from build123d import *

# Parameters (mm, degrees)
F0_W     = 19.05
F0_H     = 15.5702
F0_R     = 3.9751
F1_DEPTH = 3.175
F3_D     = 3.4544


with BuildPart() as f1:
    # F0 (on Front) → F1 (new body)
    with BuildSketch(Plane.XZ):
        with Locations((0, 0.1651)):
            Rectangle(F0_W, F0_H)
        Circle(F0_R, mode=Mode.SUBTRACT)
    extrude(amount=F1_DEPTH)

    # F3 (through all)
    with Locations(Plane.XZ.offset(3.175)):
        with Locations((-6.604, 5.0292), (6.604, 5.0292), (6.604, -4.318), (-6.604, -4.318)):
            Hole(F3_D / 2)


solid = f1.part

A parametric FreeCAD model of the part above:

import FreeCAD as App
import Part
import Sketcher

V = App.Vector
Q = App.Units.Quantity


def add_polygon(sketch, points):
    """Adds a closed chain of lines whose ends are joined by coincident constraints."""
    first, n = sketch.GeometryCount, len(points)
    for a, b in zip(points, points[1:] + points[:1]):
        sketch.addGeometry(Part.LineSegment(App.Vector(*a, 0), App.Vector(*b, 0)), False)
    for i in range(n):
        sketch.addConstraint(Sketcher.Constraint("Coincident", first + i, 2, first + (i + 1) % n, 1))

doc = App.newDocument("Part")
body = doc.addObject("PartDesign::Body", "Body")

sketch1 = doc.addObject("Sketcher::SketchObject", "Sketch")
body.addObject(sketch1)
sketch1.AttachmentSupport = (doc.XZ_Plane, [""])
sketch1.MapMode = "FlatFace"
add_polygon(sketch1, [(-9.525, 7.9502), (-9.525, -7.62), (9.525, -7.62), (9.525, 7.9502)])
sketch1.addGeometry(Part.Circle(V(0, 0, 0), V(0, 0, 1), 3.9751), False)
sketch1.addConstraint(Sketcher.Constraint("Vertical", 0))
sketch1.addConstraint(Sketcher.Constraint("Horizontal", 1))
sketch1.addConstraint(Sketcher.Constraint("Vertical", 2))
sketch1.addConstraint(Sketcher.Constraint("Horizontal", 3))
sketch1.addConstraint(Sketcher.Constraint("Coincident", 4, 3, -1, 1))
sketch1.addConstraint(Sketcher.Constraint("Diameter", 4, Q("0.313 in")))
sketch1.addConstraint(Sketcher.Constraint("DistanceX", 1, 1, 1, 2, Q("0.75 in")))
sketch1.addConstraint(Sketcher.Constraint("DistanceY", 0, 2, -1, 1, Q("0.3 in")))
sketch1.addConstraint(Sketcher.Constraint("DistanceY", 0, 2, 0, 1, Q("0.613 in")))
sketch1.addConstraint(Sketcher.Constraint("DistanceX", 0, 2, -1, 1, Q("0.375 in")))
pad1 = doc.addObject("PartDesign::Pad", "Pad")
body.addObject(pad1)
pad1.Profile = sketch1
pad1.Length = Q("0.125 in")

sketch2 = doc.addObject("Sketcher::SketchObject", "Sketch001")
body.addObject(sketch2)
sketch2.AttachmentSupport = (doc.XZ_Plane, [""])
sketch2.MapMode = "FlatFace"
sketch2.AttachmentOffset = App.Placement(V(0, 0, 0.125 * 25.4), App.Rotation())
sketch2.addGeometry(Part.Circle(V(-6.604, 5.0292, 0), V(0, 0, 1), 1.7272), False)
sketch2.addGeometry(Part.Circle(V(6.604, 5.0292, 0), V(0, 0, 1), 1.7272), False)
sketch2.addGeometry(Part.Circle(V(6.604, -4.318, 0), V(0, 0, 1), 1.7272), False)
sketch2.addGeometry(Part.Circle(V(-6.604, -4.318, 0), V(0, 0, 1), 1.7272), False)
sketch2.addConstraint(Sketcher.Constraint("Equal", 0, 1))
sketch2.addConstraint(Sketcher.Constraint("Equal", 1, 2))
sketch2.addConstraint(Sketcher.Constraint("Equal", 2, 3))
sketch2.addConstraint(Sketcher.Constraint("Symmetric", 0, 3, 1, 3, -2))
sketch2.addConstraint(Sketcher.Constraint("Symmetric", 2, 3, 3, 3, -2))
sketch2.addConstraint(Sketcher.Constraint("Vertical", 1, 3, 2, 3))
sketch2.addConstraint(Sketcher.Constraint("Diameter", 0, Q("0.136 in")))
sketch2.addConstraint(Sketcher.Constraint("DistanceX", 0, 3, -1, 1, Q("0.26 in")))
sketch2.addConstraint(Sketcher.Constraint("DistanceY", 2, 3, -1, 1, Q("0.17 in")))
sketch2.addConstraint(Sketcher.Constraint("DistanceY", -1, 1, 0, 3, Q("0.198 in")))
doc.recompute()
hole = doc.addObject("PartDesign::Hole", "Hole")
body.addObject(hole)
hole.Profile = sketch2
hole.ThreadType = "None"
hole.Diameter = Q("0.136 in")
hole.DepthType = "ThroughAll"

doc.recompute()
